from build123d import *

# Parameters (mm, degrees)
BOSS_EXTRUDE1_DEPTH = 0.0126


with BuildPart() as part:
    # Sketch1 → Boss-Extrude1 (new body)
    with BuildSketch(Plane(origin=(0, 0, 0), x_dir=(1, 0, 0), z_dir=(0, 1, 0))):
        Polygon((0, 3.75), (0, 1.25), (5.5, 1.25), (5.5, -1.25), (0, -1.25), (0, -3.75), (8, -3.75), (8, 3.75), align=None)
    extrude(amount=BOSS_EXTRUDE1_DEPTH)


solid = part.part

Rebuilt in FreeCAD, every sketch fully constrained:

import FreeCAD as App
import Part
import Sketcher

V = App.Vector
Q = App.Units.Quantity

doc = App.newDocument("Part")
body = doc.addObject("PartDesign::Body", "Body")

sketch1 = body.newObject("Sketcher::SketchObject", "Sketch")
sketch1.AttachmentSupport = (doc.getObject("XZ_Plane"), [""])
sketch1.MapMode = "FlatFace"
sketch1.addGeometry(Part.LineSegment(V(0, -3.8, 0), V(0, -1.2, 0)), False)
sketch1.addGeometry(Part.LineSegment(V(0, -1.2, 0), V(5.5, -1.2, 0)), False)
sketch1.addGeometry(Part.LineSegment(V(5.5, -1.2, 0), V(5.5, 1.2, 0)), False)
sketch1.addGeometry(Part.LineSegment(V(5.5, 1.2, 0), V(0, 1.2, 0)), False)
sketch1.addGeometry(Part.LineSegment(V(0, 1.2, 0), V(0, 3.8, 0)), False)
sketch1.addGeometry(Part.LineSegment(V(0, 3.8, 0), V(8, 3.8, 0)), False)
sketch1.addGeometry(Part.LineSegment(V(8, 3.8, 0), V(8, -3.8, 0)), False)
sketch1.addGeometry(Part.LineSegment(V(8, -3.8, 0), V(0, -3.8, 0)), False)
sketch1.addConstraint(Sketcher.Constraint("Coincident", 0, 2, 1, 1))
sketch1.addConstraint(Sketcher.Constraint("Coincident", 1, 2, 2, 1))
sketch1.addConstraint(Sketcher.Constraint("Coincident", 2, 2, 3, 1))
sketch1.addConstraint(Sketcher.Constraint("Coincident", 3, 2, 4, 1))
sketch1.addConstraint(Sketcher.Constraint("Coincident", 4, 2, 5, 1))
sketch1.addConstraint(Sketcher.Constraint("Coincident", 5, 2, 6, 1))
sketch1.addConstraint(Sketcher.Constraint("Coincident", 6, 2, 7, 1))
sketch1.addConstraint(Sketcher.Constraint("Coincident", 7, 2, 0, 1))
sketch1.addConstraint(Sketcher.Constraint("Vertical", 0))
sketch1.addConstraint(Sketcher.Constraint("Horizontal", 1))
sketch1.addConstraint(Sketcher.Constraint("Vertical", 2))
sketch1.addConstraint(Sketcher.Constraint("Horizontal", 3))
sketch1.addConstraint(Sketcher.Constraint("Vertical", 4))
sketch1.addConstraint(Sketcher.Constraint("Horizontal", 5))
sketch1.addConstraint(Sketcher.Constraint("Vertical", 6))
sketch1.addConstraint(Sketcher.Constraint("Horizontal", 7))
sketch1.addConstraint(Sketcher.Constraint("Symmetric", 0, 2, 3, 2, -1, 1))
sketch1.addConstraint(Sketcher.Constraint("Symmetric", 4, 2, 7, 2, -1))
sketch1.addConstraint(Sketcher.Constraint("Equal", 0, 2))
sketch1.addConstraint(Sketcher.Constraint("DistanceX", 5, 1, 5, 2, Q("8 mm")))
sketch1.addConstraint(Sketcher.Constraint("DistanceX", 1, 1, 1, 2, Q("5.5 mm")))
sketch1.addConstraint(Sketcher.Constraint("DistanceY", 0, 1, 0, 2, Q("2.5 mm")))
pad1 = body.newObject("PartDesign::Pad", "Pad")
pad1.Profile = sketch1
pad1.Length = 0.0126
pad1.Reversed = True

doc.recompute()
